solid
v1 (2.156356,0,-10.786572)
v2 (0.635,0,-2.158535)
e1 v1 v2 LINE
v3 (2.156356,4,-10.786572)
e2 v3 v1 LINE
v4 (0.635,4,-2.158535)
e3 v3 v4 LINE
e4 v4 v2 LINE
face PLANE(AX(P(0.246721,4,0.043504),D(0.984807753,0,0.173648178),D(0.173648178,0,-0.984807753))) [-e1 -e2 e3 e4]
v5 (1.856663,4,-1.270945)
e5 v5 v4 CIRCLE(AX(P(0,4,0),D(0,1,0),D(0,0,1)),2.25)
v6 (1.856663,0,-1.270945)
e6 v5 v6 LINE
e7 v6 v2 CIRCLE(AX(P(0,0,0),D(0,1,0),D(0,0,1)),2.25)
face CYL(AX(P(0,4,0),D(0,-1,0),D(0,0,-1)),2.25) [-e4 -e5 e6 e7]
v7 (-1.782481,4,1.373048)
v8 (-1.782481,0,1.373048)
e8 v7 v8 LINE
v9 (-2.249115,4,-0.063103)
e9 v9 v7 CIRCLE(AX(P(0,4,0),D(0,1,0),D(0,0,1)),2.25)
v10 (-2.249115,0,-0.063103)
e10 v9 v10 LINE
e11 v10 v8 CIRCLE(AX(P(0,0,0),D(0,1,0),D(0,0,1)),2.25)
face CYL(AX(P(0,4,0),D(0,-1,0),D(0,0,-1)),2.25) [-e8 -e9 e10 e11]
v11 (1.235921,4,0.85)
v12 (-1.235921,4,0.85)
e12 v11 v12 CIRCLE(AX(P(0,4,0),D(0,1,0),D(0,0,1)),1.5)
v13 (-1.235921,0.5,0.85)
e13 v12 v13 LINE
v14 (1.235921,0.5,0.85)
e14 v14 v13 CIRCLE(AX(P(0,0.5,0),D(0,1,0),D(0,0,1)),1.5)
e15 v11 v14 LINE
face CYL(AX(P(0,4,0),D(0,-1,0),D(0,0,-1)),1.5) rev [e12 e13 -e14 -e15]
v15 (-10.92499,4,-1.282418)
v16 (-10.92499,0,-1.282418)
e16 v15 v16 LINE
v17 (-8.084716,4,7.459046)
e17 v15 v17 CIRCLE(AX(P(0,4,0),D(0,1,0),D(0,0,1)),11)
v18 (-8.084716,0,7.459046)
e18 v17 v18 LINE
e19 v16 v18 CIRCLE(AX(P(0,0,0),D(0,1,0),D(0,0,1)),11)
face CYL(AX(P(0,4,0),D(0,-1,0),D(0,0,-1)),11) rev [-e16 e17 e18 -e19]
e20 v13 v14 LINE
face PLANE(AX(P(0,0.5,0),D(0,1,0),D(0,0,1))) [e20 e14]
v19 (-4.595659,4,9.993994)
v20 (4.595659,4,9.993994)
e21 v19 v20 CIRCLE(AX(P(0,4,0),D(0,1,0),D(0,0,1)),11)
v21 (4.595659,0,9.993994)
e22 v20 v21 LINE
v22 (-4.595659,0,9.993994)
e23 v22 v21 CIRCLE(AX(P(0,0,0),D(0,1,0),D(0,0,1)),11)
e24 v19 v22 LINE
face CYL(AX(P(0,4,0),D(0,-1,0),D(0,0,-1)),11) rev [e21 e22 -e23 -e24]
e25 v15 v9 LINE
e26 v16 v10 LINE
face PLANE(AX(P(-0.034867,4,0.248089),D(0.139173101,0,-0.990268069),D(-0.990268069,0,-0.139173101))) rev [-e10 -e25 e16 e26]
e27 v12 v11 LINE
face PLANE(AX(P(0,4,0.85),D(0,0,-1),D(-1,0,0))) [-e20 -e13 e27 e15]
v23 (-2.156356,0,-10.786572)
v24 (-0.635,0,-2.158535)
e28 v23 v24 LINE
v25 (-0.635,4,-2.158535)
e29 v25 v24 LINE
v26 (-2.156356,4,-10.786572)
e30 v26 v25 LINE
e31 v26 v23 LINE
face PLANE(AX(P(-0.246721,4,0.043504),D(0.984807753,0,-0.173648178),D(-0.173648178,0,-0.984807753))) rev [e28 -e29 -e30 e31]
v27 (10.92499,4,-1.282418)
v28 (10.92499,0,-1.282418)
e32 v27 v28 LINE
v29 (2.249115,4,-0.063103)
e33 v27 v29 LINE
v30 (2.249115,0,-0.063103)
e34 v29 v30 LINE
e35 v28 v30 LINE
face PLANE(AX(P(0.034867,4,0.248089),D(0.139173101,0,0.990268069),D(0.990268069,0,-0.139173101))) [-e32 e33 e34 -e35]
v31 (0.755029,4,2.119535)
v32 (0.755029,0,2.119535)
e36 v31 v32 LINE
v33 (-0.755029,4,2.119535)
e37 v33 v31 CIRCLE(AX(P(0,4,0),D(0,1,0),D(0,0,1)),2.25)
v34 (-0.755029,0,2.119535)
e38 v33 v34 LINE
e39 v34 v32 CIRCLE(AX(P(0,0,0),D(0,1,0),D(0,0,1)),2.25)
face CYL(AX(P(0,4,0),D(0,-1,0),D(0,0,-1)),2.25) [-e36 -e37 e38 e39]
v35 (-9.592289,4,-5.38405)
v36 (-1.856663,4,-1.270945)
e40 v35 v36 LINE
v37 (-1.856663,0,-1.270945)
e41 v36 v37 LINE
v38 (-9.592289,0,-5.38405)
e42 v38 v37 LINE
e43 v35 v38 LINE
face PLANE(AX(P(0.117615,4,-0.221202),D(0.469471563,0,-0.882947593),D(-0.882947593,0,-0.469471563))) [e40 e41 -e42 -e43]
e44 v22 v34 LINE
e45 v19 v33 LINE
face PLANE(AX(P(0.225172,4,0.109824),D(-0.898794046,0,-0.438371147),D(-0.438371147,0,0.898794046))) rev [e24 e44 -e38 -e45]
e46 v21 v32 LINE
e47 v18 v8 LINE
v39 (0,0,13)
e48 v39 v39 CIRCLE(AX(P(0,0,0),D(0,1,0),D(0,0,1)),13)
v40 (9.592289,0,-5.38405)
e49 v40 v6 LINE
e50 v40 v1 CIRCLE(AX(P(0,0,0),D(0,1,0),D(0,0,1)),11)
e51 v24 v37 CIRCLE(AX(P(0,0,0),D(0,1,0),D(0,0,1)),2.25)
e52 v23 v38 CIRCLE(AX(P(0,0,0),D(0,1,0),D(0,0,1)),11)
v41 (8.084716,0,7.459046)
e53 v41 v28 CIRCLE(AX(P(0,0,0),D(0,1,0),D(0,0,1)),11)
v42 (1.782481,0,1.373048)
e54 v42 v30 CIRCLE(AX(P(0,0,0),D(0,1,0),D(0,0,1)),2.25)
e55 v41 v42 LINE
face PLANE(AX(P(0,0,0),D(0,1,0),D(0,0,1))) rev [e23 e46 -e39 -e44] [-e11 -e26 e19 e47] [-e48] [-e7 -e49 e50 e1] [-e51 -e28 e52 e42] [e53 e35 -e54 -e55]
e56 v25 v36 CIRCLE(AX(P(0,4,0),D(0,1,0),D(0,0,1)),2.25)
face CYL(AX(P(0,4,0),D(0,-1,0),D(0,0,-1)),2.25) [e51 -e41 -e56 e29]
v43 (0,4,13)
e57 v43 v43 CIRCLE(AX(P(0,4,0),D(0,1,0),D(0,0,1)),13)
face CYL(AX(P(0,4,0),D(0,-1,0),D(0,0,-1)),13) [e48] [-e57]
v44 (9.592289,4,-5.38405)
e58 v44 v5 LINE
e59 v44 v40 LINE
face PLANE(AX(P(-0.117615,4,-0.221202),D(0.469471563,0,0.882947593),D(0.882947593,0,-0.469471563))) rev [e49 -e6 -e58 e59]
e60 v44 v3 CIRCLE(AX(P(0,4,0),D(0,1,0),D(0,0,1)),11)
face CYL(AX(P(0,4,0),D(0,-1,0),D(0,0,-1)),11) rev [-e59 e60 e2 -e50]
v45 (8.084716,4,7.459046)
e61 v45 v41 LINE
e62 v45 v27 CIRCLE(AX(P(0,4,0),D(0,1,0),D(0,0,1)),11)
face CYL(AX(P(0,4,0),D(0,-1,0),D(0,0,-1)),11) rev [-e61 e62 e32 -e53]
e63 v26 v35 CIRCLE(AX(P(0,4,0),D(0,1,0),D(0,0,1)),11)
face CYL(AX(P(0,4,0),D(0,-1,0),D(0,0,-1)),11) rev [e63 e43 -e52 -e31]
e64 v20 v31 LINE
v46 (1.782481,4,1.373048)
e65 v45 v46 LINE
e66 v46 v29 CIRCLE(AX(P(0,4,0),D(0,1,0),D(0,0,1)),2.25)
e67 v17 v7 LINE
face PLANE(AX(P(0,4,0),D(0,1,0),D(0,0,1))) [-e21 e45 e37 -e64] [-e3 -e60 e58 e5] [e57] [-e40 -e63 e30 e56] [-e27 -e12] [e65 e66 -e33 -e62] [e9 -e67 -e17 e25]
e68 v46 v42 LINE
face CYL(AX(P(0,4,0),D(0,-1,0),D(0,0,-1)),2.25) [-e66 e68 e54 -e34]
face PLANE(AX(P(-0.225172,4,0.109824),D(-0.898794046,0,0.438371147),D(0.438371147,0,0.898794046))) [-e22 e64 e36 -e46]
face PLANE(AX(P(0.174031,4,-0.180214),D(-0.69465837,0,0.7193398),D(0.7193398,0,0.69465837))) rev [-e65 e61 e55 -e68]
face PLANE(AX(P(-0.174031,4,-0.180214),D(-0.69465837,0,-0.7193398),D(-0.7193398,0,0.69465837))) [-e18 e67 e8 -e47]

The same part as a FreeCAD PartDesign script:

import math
import FreeCAD as App
import Part
import Sketcher
from FreeCAD import Vector
Q = App.Units.Quantity

doc = App.newDocument("Part")
body = doc.addObject("PartDesign::Body", "Body")

sketch1 = body.newObject("Sketcher::SketchObject", "Sketch")
sketch1.AttachmentSupport = (doc.getObject("XZ_Plane"), [""])
sketch1.MapMode = "FlatFace"
sketch1.addGeometry([
    Part.Circle(Vector(0, 0, 0), Vector(0, 0, 1), 13),
    Part.LineSegment(Vector(-2.2, -10.8, 0), Vector(-0.6, -2.2, 0)),
    Part.ArcOfCircle(Part.Circle(Vector(0, 0, 0), Vector(0, 0, 1), 2.2), math.radians(-146), math.radians(-106)),
    Part.LineSegment(Vector(-1.9, -1.3, 0), Vector(-9.6, -5.4, 0)),
    Part.ArcOfCircle(Part.Circle(Vector(0, 0, 0), Vector(0, 0, 1), 11), math.radians(-151), math.radians(-101)),
    Part.LineSegment(Vector(-10.9, -1.3, 0), Vector(-2.2, -0.1, 0)),
    Part.ArcOfCircle(Part.Circle(Vector(0, 0, 0), Vector(0, 0, 1), 2.2), math.radians(142), math.radians(182)),
    Part.LineSegment(Vector(-1.8, 1.4, 0), Vector(-8.1, 7.5, 0)),
    Part.ArcOfCircle(Part.Circle(Vector(0, 0, 0), Vector(0, 0, 1), 11), math.radians(137), math.radians(187)),
    Part.ArcOfCircle(Part.Circle(Vector(0, 0, 0), Vector(0, 0, 1), 2.2), math.radians(-74), math.radians(-34)),
    Part.LineSegment(Vector(0.6, -2.2, 0), Vector(2.2, -10.8, 0)),
    Part.ArcOfCircle(Part.Circle(Vector(0, 0, 0), Vector(0, 0, 1), 11), math.radians(-79), math.radians(-29)),
    Part.LineSegment(Vector(9.6, -5.4, 0), Vector(1.9, -1.3, 0)),
    Part.ArcOfCircle(Part.Circle(Vector(0, 0, 0), Vector(0, 0, 1), 1.5), math.radians(145), math.radians(395)),
    Part.LineSegment(Vector(1.2, 0.8, 0), Vector(-1.2, 0.8, 0)),
    Part.LineSegment(Vector(-4.6, 10, 0), Vector(-0.8, 2.1, 0)),
    Part.ArcOfCircle(Part.Circle(Vector(0, 0, 0), Vector(0, 0, 1), 2.2), math.radians(70), math.radians(110)),
    Part.LineSegment(Vector(0.8, 2.1, 0), Vector(4.6, 10, 0)),
    Part.ArcOfCircle(Part.Circle(Vector(0, 0, 0), Vector(0, 0, 1), 11), math.radians(65), math.radians(115)),
    Part.LineSegment(Vector(8.1, 7.5, 0), Vector(1.8, 1.4, 0)),
    Part.ArcOfCircle(Part.Circle(Vector(0, 0, 0), Vector(0, 0, 1), 2.2), math.radians(-2), math.radians(38)),
    Part.LineSegment(Vector(2.2, -0.1, 0), Vector(10.9, -1.3, 0)),
    Part.ArcOfCircle(Part.Circle(Vector(0, 0, 0), Vector(0, 0, 1), 11), math.radians(-7), math.radians(43)),
], False)
sketch1.addConstraint([
    Sketcher.Constraint("Coincident", 1, 2, 2, 2),
    Sketcher.Constraint("Coincident", 2, 1, 3, 1),
    Sketcher.Constraint("Coincident", 3, 2, 4, 1),
    Sketcher.Constraint("Coincident", 4, 2, 1, 1),
    Sketcher.Constraint("Coincident", 5, 2, 6, 2),
    Sketcher.Constraint("Coincident", 6, 1, 7, 1),
    Sketcher.Constraint("Coincident", 7, 2, 8, 1),
    Sketcher.Constraint("Coincident", 8, 2, 5, 1),
    Sketcher.Constraint("Coincident", 9, 1, 10, 1),
    Sketcher.Constraint("Coincident", 10, 2, 11, 1),
    Sketcher.Constraint("Coincident", 11, 2, 12, 1),
    Sketcher.Constraint("Coincident", 12, 2, 9, 2),
    Sketcher.Constraint("Coincident", 13, 1, 14, 2),
    Sketcher.Constraint("Coincident", 14, 1, 13, 2),
    Sketcher.Constraint("Coincident", 15, 2, 16, 2),
    Sketcher.Constraint("Coincident", 16, 1, 17, 1),
    Sketcher.Constraint("Coincident", 17, 2, 18, 1),
    Sketcher.Constraint("Coincident", 18, 2, 15, 1),
    Sketcher.Constraint("Coincident", 19, 2, 20, 2),
    Sketcher.Constraint("Coincident", 20, 1, 21, 1),
    Sketcher.Constraint("Coincident", 21, 2, 22, 1),
    Sketcher.Constraint("Coincident", 22, 2, 19, 1),
    Sketcher.Constraint("Horizontal", 14),
    Sketcher.Constraint("Coincident", 0, 3, -1, 1),
    Sketcher.Constraint("Coincident", 2, 3, -1, 1),
    Sketcher.Constraint("Coincident", 4, 3, -1, 1),
    Sketcher.Constraint("Coincident", 6, 3, -1, 1),
    Sketcher.Constraint("Coincident", 8, 3, -1, 1),
    Sketcher.Constraint("Coincident", 9, 3, -1, 1),
    Sketcher.Constraint("Coincident", 11, 3, -1, 1),
    Sketcher.Constraint("Coincident", 13, 3, -1, 1),
    Sketcher.Constraint("Coincident", 16, 3, -1, 1),
    Sketcher.Constraint("Coincident", 18, 3, -1, 1),
    Sketcher.Constraint("Coincident", 20, 3, -1, 1),
    Sketcher.Constraint("Coincident", 22, 3, -1, 1),
    Sketcher.Constraint("Equal", 2, 6),
    Sketcher.Constraint("Equal", 4, 8),
    Sketcher.Constraint("Equal", 6, 9),
    Sketcher.Constraint("Equal", 8, 11),
    Sketcher.Constraint("Equal", 9, 16),
    Sketcher.Constraint("Equal", 11, 18),
    Sketcher.Constraint("Equal", 16, 20),
    Sketcher.Constraint("Equal", 18, 22),
    Sketcher.Constraint("Horizontal", 1, 2, 9, 1),
    Sketcher.Constraint("Horizontal", 4, 2, 10, 2),
    Sketcher.Constraint("Horizontal", 3, 2, 11, 2),
    Sketcher.Constraint("Horizontal", 2, 1, 12, 2),
    Sketcher.Constraint("Horizontal", 15, 2, 16, 1),
    Sketcher.Constraint("Horizontal", 17, 2, 18, 2),
    Sketcher.Constraint("Horizontal", 6, 1, 19, 2),
    Sketcher.Constraint("Horizontal", 5, 2, 20, 1),
    Sketcher.Constraint("Horizontal", 8, 2, 21, 2),
    Sketcher.Constraint("Horizontal", 7, 2, 22, 2),
    Sketcher.Constraint("Equal", 1, 3),
    Sketcher.Constraint("Equal", 3, 5),
    Sketcher.Constraint("Equal", 5, 7),
    Sketcher.Constraint("Equal", 12, 15),
    Sketcher.Constraint("Diameter", 0, Q("26 mm")),
    Sketcher.Constraint("Radius", 4, Q("11 mm")),
    Sketcher.Constraint("Radius", 13, Q("1.5 mm")),
    Sketcher.Constraint("Angle", 1, Q("80 deg")),
    Sketcher.Constraint("Angle", 3, Q("-152 deg")),
    Sketcher.Constraint("Angle", 5, Q("8 deg")),
    Sketcher.Constraint("Angle", 7, Q("136 deg")),
    Sketcher.Constraint("Angle", 15, Q("-64 deg")),
    Sketcher.Constraint("Radius", 2, Q("2.25 mm")),
    Sketcher.Constraint("DistanceY", -1, 1, 13, 1, Q("0.85 mm")),
    Sketcher.Constraint("DistanceX", 1, 2, 9, 1, Q("1.27 mm")),
])
pad1 = body.newObject("PartDesign::Pad", "Pad")
pad1.Profile = sketch1
pad1.Length = 4
pad1.Reversed = True

sketch2 = body.newObject("Sketcher::SketchObject", "Sketch001")
sketch2.AttachmentSupport = (doc.getObject("XZ_Plane"), [""])
sketch2.MapMode = "FlatFace"
sketch2.addGeometry(Part.Circle(Vector(0, 0, 0), Vector(0, 0, 1), 1.5), False)
sketch2.addConstraint([
    Sketcher.Constraint("Coincident", 0, 3, -1, 1),
    Sketcher.Constraint("Diameter", 0, Q("3 mm")),
])
pad2 = body.newObject("PartDesign::Pad", "Pad001")
pad2.Profile = sketch2
pad2.Length = 0.5
pad2.Reversed = True

doc.recompute()
